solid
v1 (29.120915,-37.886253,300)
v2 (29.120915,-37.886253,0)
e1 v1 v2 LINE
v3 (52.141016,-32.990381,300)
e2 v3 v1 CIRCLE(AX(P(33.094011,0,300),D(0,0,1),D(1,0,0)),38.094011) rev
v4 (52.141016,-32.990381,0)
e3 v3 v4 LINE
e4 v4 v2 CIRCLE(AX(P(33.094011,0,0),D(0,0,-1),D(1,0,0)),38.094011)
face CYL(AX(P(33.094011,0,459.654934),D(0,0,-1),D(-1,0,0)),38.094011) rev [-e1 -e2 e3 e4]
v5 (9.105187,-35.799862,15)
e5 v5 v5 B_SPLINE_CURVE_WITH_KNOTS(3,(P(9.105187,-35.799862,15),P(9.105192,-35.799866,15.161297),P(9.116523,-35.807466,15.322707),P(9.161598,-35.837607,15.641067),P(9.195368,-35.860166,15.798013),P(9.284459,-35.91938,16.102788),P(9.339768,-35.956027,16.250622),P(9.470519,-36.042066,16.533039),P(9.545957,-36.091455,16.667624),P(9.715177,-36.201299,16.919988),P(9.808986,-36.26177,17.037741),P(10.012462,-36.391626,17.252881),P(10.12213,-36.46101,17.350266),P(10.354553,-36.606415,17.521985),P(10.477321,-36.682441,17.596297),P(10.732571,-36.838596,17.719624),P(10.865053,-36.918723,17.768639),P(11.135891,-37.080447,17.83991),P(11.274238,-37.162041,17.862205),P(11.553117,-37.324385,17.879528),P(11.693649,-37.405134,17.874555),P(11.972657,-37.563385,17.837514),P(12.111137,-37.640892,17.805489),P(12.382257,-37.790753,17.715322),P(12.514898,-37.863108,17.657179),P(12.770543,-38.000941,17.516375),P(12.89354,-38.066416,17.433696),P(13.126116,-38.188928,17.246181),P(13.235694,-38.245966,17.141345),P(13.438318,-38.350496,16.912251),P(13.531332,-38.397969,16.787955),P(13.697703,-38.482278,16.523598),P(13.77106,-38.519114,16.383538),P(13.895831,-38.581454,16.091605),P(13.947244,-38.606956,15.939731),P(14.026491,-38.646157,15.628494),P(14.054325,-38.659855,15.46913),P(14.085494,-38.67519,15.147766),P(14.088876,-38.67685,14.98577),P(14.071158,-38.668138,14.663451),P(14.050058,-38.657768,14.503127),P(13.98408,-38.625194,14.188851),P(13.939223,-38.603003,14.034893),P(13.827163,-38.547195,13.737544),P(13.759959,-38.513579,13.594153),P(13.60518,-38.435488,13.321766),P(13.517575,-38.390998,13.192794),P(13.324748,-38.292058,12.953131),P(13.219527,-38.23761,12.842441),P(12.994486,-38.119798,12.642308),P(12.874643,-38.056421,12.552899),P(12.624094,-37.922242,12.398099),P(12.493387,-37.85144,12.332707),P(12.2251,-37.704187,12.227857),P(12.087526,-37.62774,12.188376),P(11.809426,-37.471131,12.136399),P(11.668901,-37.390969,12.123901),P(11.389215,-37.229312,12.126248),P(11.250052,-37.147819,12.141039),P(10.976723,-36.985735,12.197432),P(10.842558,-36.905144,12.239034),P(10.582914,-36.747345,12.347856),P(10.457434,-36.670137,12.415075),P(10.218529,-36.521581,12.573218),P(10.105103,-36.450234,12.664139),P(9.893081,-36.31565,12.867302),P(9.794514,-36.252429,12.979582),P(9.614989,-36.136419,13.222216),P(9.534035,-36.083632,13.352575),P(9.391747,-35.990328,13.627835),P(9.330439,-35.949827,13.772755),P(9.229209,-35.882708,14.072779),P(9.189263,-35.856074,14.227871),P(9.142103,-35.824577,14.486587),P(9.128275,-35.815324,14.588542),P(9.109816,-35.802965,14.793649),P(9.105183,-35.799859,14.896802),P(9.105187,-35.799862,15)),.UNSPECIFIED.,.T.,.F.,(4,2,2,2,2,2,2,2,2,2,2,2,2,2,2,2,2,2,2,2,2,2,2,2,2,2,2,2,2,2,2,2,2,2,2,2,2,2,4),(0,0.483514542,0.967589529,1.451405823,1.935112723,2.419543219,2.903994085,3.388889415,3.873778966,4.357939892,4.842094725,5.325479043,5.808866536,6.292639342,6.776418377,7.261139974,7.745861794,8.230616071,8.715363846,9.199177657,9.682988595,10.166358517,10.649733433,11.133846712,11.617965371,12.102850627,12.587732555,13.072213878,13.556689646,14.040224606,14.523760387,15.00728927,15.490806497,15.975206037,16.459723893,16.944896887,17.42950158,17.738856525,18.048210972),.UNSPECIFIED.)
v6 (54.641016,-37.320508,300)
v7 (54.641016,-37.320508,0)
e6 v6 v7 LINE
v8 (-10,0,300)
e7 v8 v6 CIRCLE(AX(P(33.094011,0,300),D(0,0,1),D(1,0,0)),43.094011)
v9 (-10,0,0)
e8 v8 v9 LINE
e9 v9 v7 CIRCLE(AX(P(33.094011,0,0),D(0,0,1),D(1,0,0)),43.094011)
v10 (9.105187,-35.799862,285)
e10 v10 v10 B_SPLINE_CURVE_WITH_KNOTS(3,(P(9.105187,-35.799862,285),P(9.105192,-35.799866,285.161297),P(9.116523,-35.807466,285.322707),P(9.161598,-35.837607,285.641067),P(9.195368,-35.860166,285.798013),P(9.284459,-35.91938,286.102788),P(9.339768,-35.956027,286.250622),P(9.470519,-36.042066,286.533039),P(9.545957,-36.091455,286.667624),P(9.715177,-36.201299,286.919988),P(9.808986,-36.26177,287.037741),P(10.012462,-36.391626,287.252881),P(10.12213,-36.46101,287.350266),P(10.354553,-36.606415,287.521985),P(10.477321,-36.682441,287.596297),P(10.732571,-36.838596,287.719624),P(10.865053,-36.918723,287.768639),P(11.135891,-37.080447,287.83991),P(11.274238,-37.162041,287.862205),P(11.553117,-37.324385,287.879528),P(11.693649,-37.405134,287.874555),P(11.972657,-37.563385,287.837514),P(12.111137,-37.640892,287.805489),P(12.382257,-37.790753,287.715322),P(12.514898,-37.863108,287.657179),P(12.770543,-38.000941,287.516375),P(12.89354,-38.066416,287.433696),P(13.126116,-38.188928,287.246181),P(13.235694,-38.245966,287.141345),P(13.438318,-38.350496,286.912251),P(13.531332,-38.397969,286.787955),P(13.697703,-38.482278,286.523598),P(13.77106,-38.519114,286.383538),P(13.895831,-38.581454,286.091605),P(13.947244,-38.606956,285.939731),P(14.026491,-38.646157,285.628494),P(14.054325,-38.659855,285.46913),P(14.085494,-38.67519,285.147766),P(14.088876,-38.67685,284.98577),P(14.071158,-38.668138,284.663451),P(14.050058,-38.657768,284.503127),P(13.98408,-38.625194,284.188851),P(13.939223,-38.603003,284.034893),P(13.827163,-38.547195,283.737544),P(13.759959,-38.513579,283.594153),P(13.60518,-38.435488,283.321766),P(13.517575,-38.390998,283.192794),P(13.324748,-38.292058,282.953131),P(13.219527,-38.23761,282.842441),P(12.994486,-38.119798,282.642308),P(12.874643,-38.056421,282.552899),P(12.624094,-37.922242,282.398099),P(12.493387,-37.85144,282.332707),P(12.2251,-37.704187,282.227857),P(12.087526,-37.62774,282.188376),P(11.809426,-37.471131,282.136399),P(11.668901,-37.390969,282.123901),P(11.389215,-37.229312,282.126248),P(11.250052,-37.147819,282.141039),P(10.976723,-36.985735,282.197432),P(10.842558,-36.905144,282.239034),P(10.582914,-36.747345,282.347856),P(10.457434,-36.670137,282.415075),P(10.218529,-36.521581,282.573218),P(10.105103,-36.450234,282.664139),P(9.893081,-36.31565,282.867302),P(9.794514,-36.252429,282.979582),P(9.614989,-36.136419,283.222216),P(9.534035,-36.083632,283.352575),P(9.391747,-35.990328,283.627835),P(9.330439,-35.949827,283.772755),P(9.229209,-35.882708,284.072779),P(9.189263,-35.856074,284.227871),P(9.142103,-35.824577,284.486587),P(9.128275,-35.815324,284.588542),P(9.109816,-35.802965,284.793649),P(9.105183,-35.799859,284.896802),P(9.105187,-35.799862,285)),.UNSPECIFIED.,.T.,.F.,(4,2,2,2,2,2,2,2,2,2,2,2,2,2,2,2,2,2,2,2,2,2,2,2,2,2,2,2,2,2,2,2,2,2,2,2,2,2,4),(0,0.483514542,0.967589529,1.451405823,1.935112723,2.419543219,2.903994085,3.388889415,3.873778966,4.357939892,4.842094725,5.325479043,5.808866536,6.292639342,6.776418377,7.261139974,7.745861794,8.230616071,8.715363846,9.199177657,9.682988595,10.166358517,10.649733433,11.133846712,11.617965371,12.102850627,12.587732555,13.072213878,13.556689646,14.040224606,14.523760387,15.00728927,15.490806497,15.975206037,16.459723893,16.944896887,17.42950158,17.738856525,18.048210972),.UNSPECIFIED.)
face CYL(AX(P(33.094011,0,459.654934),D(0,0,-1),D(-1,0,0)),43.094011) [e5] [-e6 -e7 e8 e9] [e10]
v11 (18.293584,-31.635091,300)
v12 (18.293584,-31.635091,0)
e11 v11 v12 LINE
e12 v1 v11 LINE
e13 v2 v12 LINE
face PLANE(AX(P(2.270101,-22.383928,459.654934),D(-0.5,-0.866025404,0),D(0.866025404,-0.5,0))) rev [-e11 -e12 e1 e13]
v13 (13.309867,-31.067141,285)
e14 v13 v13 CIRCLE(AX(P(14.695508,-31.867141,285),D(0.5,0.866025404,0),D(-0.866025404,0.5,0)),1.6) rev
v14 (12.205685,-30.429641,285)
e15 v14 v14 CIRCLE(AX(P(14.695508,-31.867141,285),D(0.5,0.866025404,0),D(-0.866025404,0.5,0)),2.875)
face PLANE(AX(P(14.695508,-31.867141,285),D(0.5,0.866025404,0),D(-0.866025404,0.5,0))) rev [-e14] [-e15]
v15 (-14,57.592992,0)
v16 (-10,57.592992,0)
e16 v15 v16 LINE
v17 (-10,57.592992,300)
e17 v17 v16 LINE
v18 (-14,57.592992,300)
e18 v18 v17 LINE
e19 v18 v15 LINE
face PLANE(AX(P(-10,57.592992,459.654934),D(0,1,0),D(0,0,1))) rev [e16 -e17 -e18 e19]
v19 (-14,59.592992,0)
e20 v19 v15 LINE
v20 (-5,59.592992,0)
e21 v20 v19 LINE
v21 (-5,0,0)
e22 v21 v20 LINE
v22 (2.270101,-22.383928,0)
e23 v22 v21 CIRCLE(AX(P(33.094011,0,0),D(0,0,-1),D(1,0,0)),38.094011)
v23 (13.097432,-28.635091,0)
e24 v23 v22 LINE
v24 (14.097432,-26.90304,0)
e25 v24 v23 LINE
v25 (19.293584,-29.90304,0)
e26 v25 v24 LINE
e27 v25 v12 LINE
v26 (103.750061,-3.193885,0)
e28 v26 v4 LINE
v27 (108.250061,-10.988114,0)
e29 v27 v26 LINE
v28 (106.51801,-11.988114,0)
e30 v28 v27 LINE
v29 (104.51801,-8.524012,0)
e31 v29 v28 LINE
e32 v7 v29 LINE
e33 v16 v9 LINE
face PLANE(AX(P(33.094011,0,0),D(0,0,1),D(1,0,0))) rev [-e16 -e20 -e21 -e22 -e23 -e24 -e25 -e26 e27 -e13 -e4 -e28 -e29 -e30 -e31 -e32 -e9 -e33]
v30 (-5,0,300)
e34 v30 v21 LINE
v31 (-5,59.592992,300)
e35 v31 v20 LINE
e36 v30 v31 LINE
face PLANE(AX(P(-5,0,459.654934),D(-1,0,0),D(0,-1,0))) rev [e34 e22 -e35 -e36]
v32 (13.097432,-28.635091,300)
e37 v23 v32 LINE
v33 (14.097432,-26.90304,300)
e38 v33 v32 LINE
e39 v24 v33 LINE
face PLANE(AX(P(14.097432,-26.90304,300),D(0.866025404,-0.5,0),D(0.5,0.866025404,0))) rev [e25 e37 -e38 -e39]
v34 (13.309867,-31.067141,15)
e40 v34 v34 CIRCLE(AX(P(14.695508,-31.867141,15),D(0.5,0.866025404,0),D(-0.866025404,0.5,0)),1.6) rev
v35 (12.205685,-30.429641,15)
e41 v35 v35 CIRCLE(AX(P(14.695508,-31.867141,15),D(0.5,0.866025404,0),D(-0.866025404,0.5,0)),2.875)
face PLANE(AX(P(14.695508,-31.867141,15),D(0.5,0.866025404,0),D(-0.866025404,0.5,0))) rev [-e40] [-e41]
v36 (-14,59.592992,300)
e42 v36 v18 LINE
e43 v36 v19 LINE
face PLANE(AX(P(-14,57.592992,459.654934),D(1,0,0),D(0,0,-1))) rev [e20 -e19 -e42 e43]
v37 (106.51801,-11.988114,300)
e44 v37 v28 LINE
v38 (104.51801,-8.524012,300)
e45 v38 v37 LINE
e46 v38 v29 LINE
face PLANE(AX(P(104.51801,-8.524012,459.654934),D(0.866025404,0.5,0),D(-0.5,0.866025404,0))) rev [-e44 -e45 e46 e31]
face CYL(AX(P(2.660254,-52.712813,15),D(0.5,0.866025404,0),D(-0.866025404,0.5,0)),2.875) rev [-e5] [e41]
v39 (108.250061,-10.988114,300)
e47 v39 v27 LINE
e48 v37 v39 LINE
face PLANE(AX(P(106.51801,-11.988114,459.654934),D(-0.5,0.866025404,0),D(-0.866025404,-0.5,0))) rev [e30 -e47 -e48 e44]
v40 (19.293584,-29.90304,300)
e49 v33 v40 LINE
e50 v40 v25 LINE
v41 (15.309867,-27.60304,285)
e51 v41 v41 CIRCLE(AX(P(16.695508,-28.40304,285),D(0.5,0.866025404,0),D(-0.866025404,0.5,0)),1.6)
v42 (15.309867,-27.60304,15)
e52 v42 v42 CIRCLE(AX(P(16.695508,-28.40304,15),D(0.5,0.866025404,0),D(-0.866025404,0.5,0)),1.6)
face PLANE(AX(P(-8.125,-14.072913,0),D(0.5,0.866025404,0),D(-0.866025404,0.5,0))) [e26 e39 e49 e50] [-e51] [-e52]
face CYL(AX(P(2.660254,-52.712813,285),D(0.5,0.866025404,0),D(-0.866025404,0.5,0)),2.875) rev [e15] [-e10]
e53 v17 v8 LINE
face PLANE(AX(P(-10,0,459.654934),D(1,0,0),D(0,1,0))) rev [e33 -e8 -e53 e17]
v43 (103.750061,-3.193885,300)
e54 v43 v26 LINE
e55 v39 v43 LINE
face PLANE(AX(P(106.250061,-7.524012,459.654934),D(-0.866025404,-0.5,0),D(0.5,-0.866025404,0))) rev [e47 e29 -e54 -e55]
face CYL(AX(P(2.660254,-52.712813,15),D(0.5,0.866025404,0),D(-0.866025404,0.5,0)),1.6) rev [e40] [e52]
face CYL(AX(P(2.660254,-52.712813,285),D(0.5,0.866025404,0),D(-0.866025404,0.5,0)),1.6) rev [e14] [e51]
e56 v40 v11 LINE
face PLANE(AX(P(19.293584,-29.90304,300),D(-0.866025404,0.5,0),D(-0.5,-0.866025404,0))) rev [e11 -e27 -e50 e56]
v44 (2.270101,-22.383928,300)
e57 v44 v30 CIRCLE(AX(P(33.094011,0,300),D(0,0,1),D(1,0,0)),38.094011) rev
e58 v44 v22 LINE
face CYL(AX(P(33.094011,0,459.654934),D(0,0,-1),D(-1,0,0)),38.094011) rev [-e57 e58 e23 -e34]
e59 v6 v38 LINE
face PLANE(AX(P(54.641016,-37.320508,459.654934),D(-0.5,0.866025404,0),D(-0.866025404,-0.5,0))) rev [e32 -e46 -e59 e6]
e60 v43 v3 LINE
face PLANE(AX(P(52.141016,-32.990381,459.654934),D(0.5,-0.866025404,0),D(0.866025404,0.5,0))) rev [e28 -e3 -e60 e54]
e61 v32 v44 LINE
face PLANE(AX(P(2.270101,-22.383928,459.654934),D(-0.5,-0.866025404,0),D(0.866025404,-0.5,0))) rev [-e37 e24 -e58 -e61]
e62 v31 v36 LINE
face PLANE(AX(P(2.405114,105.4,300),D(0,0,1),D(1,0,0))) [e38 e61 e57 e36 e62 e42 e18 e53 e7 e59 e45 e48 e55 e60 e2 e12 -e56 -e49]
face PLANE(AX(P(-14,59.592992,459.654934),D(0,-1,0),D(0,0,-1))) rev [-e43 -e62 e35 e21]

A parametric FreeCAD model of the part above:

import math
import FreeCAD as App
import Part
import Sketcher
Q = App.Units.Quantity

doc = App.newDocument("Part")
params = doc.addObject("Spreadsheet::Sheet", "Params")
for row, (alias, value) in enumerate([
    ("sketch1_width", "9 mm"),
    ("sketch1_width2", "4 mm"),
    ("sketch1_height", "2 mm"),
    ("sketch1_length", "4 mm"),
    ("sketch1_length2", "2 mm"),
    ("pad1_length", "300 mm"),
    ("sketch2_diameter", "3.2 mm"),
    ("sketch3_diameter", "5.75 mm"),
    ("sketch4_diameter", "3.2 mm"),
    ("sketch4_width", "6 mm"),
    ("sketch4_height", "300 mm"),
    ("pad2_length", "2 mm"),
], start=1):
    params.set(f"A{row}", alias)
    params.set(f"B{row}", "=" + value)
    params.setAlias(f"B{row}", alias)

body = doc.addObject("PartDesign::Body", "Body")

# Sketch on XY plane
sketch1 = doc.addObject("Sketcher::SketchObject", "Sketch")
body.addObject(sketch1)
sketch1.AttachmentSupport = (doc.XY_Plane, [""])
sketch1.MapMode = "FlatFace"
sketch1.addGeometry(Part.LineSegment(App.Vector(-10, 57.592992, 0), App.Vector(-10, 0, 0)), False)
sketch1.addGeometry(Part.ArcOfCircle(Part.Circle(App.Vector(33.094011, 0, 0), App.Vector(0, 0, 1), 43.094011), math.radians(180), math.radians(300)), False)
sketch1.addGeometry(Part.LineSegment(App.Vector(54.641016, -37.320508, 0), App.Vector(104.51801, -8.524012, 0)), False)
sketch1.addGeometry(Part.LineSegment(App.Vector(104.51801, -8.524012, 0), App.Vector(106.51801, -11.988114, 0)), False)
sketch1.addGeometry(Part.LineSegment(App.Vector(106.51801, -11.988114, 0), App.Vector(108.250061, -10.988114, 0)), False)
sketch1.addGeometry(Part.LineSegment(App.Vector(108.250061, -10.988114, 0), App.Vector(106.250061, -7.524012, 0)), False)
sketch1.addGeometry(Part.LineSegment(App.Vector(106.250061, -7.524012, 0), App.Vector(103.750061, -3.193885, 0)), False)
sketch1.addGeometry(Part.LineSegment(App.Vector(103.750061, -3.193885, 0), App.Vector(52.141016, -32.990381, 0)), False)
sketch1.addGeometry(Part.ArcOfCircle(Part.Circle(App.Vector(33.094011, 0, 0), App.Vector(0, 0, 1), 38.094011), math.radians(-95.986672), math.radians(-60)), False)
sketch1.addGeometry(Part.LineSegment(App.Vector(29.120915, -37.886253, 0), App.Vector(2.270101, -22.383928, 0)), False)
sketch1.addGeometry(Part.ArcOfCircle(Part.Circle(App.Vector(33.094011, 0, 0), App.Vector(0, 0, 1), 38.094011), math.radians(-180), math.radians(-144.013328)), False)
sketch1.addGeometry(Part.LineSegment(App.Vector(-5, 0, 0), App.Vector(-5, 59.592992, 0)), False)
sketch1.addGeometry(Part.LineSegment(App.Vector(-5, 59.592992, 0), App.Vector(-14, 59.592992, 0)), False)
sketch1.addGeometry(Part.LineSegment(App.Vector(-14, 59.592992, 0), App.Vector(-14, 57.592992, 0)), False)
sketch1.addGeometry(Part.LineSegment(App.Vector(-14, 57.592992, 0), App.Vector(-10, 57.592992, 0)), False)
sketch1.addConstraint(Sketcher.Constraint("Tangent", 0, 2, 1, 1))
sketch1.addConstraint(Sketcher.Constraint("Tangent", 1, 2, 2, 1))
sketch1.addConstraint(Sketcher.Constraint("Coincident", 2, 2, 3, 1))
sketch1.addConstraint(Sketcher.Constraint("Coincident", 3, 2, 4, 1))
sketch1.addConstraint(Sketcher.Constraint("Coincident", 4, 2, 5, 1))
sketch1.addConstraint(Sketcher.Constraint("Coincident", 5, 2, 6, 1))
sketch1.addConstraint(Sketcher.Constraint("Coincident", 6, 2, 7, 1))
sketch1.addConstraint(Sketcher.Constraint("Tangent", 7, 2, 8, 2))
sketch1.addConstraint(Sketcher.Constraint("Coincident", 8, 1, 9, 1))
sketch1.addConstraint(Sketcher.Constraint("Coincident", 9, 2, 10, 2))
sketch1.addConstraint(Sketcher.Constraint("Tangent", 10, 1, 11, 1))
sketch1.addConstraint(Sketcher.Constraint("Coincident", 11, 2, 12, 1))
sketch1.addConstraint(Sketcher.Constraint("Coincident", 12, 2, 13, 1))
sketch1.addConstraint(Sketcher.Constraint("Coincident", 13, 2, 14, 1))
sketch1.addConstraint(Sketcher.Constraint("Coincident", 14, 2, 0, 1))
sketch1.addConstraint(Sketcher.Constraint("Vertical", 0))
sketch1.addConstraint(Sketcher.Constraint("Vertical", 11))
sketch1.addConstraint(Sketcher.Constraint("Horizontal", 12))
sketch1.addConstraint(Sketcher.Constraint("Vertical", 13))
sketch1.addConstraint(Sketcher.Constraint("Horizontal", 14))
sketch1.addConstraint(Sketcher.Constraint("Coincident", 8, 3, 1, 3))
sketch1.addConstraint(Sketcher.Constraint("Coincident", 10, 3, 1, 3))
sketch1.addConstraint(Sketcher.Constraint("Equal", 8, 10))
sketch1.addConstraint(Sketcher.Constraint("PointOnObject", 1, 3, -1))
sketch1.addConstraint(Sketcher.Constraint("Perpendicular", 2, 3))
sketch1.addConstraint(Sketcher.Constraint("Perpendicular", 3, 4))
sketch1.addConstraint(Sketcher.Constraint("Perpendicular", 4, 5))
sketch1.addConstraint(Sketcher.Constraint("Parallel", 5, 6))
sketch1.addConstraint(Sketcher.Constraint("Perpendicular", 6, 7))
sketch1.addConstraint(Sketcher.Constraint("Equal", 3, 5))
sketch1.addConstraint(Sketcher.Constraint("DistanceX", 12, 2, 12, 1, 9.0))
sketch1.addConstraint(Sketcher.Constraint("DistanceX", 14, 1, 14, 2, 4.0))
sketch1.addConstraint(Sketcher.Constraint("DistanceY", 13, 2, 13, 1, 2.0))
sketch1.addConstraint(Sketcher.Constraint("Angle", 2, Q("30 deg")))
sketch1.addConstraint(Sketcher.Constraint("Angle", 9, Q("150 deg")))
sketch1.addConstraint(Sketcher.Constraint("Distance", 3, 4.0))
sketch1.addConstraint(Sketcher.Constraint("Distance", 4, 2.0))
sketch1.addConstraint(Sketcher.Constraint("DistanceX", 0, 2, -1, 1, 10.0))
sketch1.addConstraint(Sketcher.Constraint("Radius", 1, 43.094011))
sketch1.addConstraint(Sketcher.Constraint("DistanceX", 10, 3, 2, 2, 71.423999))
sketch1.addConstraint(Sketcher.Constraint("DistanceY", 0, 2, 0, 1, 57.592992))
sketch1.addConstraint(Sketcher.Constraint("DistanceX", -1, 1, 9, 2, 2.270101))
sketch1.setExpression("Constraints[30]", "Params.sketch1_width")
sketch1.setExpression("Constraints[31]", "Params.sketch1_width2")
sketch1.setExpression("Constraints[32]", "Params.sketch1_height")
sketch1.setExpression("Constraints[35]", "Params.sketch1_length")
sketch1.setExpression("Constraints[36]", "Params.sketch1_length2")
pad1 = doc.addObject("PartDesign::Pad", "Pad")
body.addObject(pad1)
pad1.Profile = sketch1
pad1.setExpression("Length", "Params.pad1_length")

# Sketch on an angled plane
sketch2 = doc.addObject("Sketcher::SketchObject", "Sketch001")
body.addObject(sketch2)
sketch2.Placement = App.Placement(App.Vector(-9.125, -15.804964, 0), App.Rotation(App.Vector(0.866025404, -0.5, 0), App.Vector(0, 0, -1), App.Vector(0.5, 0.866025404, 0), "ZXY"))
sketch2.addGeometry(Part.Circle(App.Vector(28.660254, -15, 0), App.Vector(0, 0, 1), 1.6), False)
sketch2.addGeometry(Part.Circle(App.Vector(28.660254, -285, 0), App.Vector(0, 0, 1), 1.6), False)
sketch2.addConstraint(Sketcher.Constraint("Equal", 0, 1))
sketch2.addConstraint(Sketcher.Constraint("Vertical", 0, 3, 1, 3))
sketch2.addConstraint(Sketcher.Constraint("Diameter", 0, 3.2))
sketch2.addConstraint(Sketcher.Constraint("DistanceY", 0, 3, -1, 1, 15.0))
sketch2.addConstraint(Sketcher.Constraint("DistanceY", 1, 3, -1, 1, 285.0))
sketch2.addConstraint(Sketcher.Constraint("DistanceX", -1, 1, 0, 3, 28.660254))
sketch2.setExpression("Constraints[2]", "Params.sketch2_diameter")
pocket1 = doc.addObject("PartDesign::Pocket", "Pocket")
body.addObject(pocket1)
pocket1.Profile = sketch2
pocket1.Type = "ThroughAll"

# Sketch on an angled plane
sketch3 = doc.addObject("Sketcher::SketchObject", "Sketch002")
body.addObject(sketch3)
sketch3.Placement = App.Placement(App.Vector(-10.125, -17.537014, 0), App.Rotation(App.Vector(0.866025404, -0.5, 0), App.Vector(0, 0, -1), App.Vector(0.5, 0.866025404, 0), "ZXY"))
sketch3.addGeometry(Part.Circle(App.Vector(28.660254, -15, 0), App.Vector(0, 0, 1), 2.875), False)
sketch3.addGeometry(Part.Circle(App.Vector(28.660254, -285, 0), App.Vector(0, 0, 1), 2.875), False)
sketch3.addConstraint(Sketcher.Constraint("Equal", 0, 1))
sketch3.addConstraint(Sketcher.Constraint("Vertical", 0, 3, 1, 3))
sketch3.addConstraint(Sketcher.Constraint("Diameter", 0, 5.75))
sketch3.addConstraint(Sketcher.Constraint("DistanceY", 0, 3, -1, 1, 15.0))
sketch3.addConstraint(Sketcher.Constraint("DistanceY", 1, 3, -1, 1, 285.0))
sketch3.addConstraint(Sketcher.Constraint("DistanceX", -1, 1, 0, 3, 28.660254))
sketch3.setExpression("Constraints[2]", "Params.sketch3_diameter")
pocket2 = doc.addObject("PartDesign::Pocket", "Pocket001")
body.addObject(pocket2)
pocket2.Profile = sketch3
pocket2.Type = "ThroughAll"

# Sketch on an angled plane
sketch4 = doc.addObject("Sketcher::SketchObject", "Sketch003")
body.addObject(sketch4)
sketch4.Placement = App.Placement(App.Vector(-9.125, -15.804964, 0), App.Rotation(App.Vector(0.866025404, -0.5, 0), App.Vector(0, 0, -1), App.Vector(0.5, 0.866025404, 0), "ZXY"))
sketch4.addGeometry(Part.LineSegment(App.Vector(25.660254, 0, 0), App.Vector(25.660254, -300, 0)), False)
sketch4.addGeometry(Part.LineSegment(App.Vector(25.660254, -300, 0), App.Vector(31.660254, -300, 0)), False)
sketch4.addGeometry(Part.LineSegment(App.Vector(31.660254, -300, 0), App.Vector(31.660254, 0, 0)), False)
sketch4.addGeometry(Part.LineSegment(App.Vector(31.660254, 0, 0), App.Vector(25.660254, 0, 0)), False)
sketch4.addGeometry(Part.Circle(App.Vector(28.660254, -285, 0), App.Vector(0, 0, 1), 1.6), False)
sketch4.addGeometry(Part.Circle(App.Vector(28.660254, -15, 0), App.Vector(0, 0, 1), 1.6), False)
sketch4.addConstraint(Sketcher.Constraint("Coincident", 0, 2, 1, 1))
sketch4.addConstraint(Sketcher.Constraint("Coincident", 1, 2, 2, 1))
sketch4.addConstraint(Sketcher.Constraint("Coincident", 2, 2, 3, 1))
sketch4.addConstraint(Sketcher.Constraint("Coincident", 3, 2, 0, 1))
sketch4.addConstraint(Sketcher.Constraint("Vertical", 0))
sketch4.addConstraint(Sketcher.Constraint("Horizontal", 1))
sketch4.addConstraint(Sketcher.Constraint("Vertical", 2))
sketch4.addConstraint(Sketcher.Constraint("Horizontal", 3))
sketch4.addConstraint(Sketcher.Constraint("Equal", 4, 5))
sketch4.addConstraint(Sketcher.Constraint("PointOnObject", 2, 2, -1))
sketch4.addConstraint(Sketcher.Constraint("Vertical", 4, 3, 5, 3))
sketch4.addConstraint(Sketcher.Constraint("Diameter", 4, 3.2))
sketch4.addConstraint(Sketcher.Constraint("DistanceX", 1, 1, 1, 2, 6.0))
sketch4.addConstraint(Sketcher.Constraint("DistanceY", 0, 2, 0, 1, 300.0))
sketch4.addConstraint(Sketcher.Constraint("DistanceY", 4, 3, -1, 1, 285.0))
sketch4.addConstraint(Sketcher.Constraint("DistanceY", 5, 3, -1, 1, 15.0))
sketch4.addConstraint(Sketcher.Constraint("DistanceX", 0, 2, 4, 3, 3.0))
sketch4.addConstraint(Sketcher.Constraint("DistanceX", -1, 1, 4, 3, 28.660254))
sketch4.setExpression("Constraints[11]", "Params.sketch4_diameter")
sketch4.setExpression("Constraints[12]", "Params.sketch4_width")
sketch4.setExpression("Constraints[13]", "Params.sketch4_height")
pad2 = doc.addObject("PartDesign::Pad", "Pad001")
body.addObject(pad2)
pad2.Profile = sketch4
pad2.setExpression("Length", "Params.pad2_length")

doc.recompute()
